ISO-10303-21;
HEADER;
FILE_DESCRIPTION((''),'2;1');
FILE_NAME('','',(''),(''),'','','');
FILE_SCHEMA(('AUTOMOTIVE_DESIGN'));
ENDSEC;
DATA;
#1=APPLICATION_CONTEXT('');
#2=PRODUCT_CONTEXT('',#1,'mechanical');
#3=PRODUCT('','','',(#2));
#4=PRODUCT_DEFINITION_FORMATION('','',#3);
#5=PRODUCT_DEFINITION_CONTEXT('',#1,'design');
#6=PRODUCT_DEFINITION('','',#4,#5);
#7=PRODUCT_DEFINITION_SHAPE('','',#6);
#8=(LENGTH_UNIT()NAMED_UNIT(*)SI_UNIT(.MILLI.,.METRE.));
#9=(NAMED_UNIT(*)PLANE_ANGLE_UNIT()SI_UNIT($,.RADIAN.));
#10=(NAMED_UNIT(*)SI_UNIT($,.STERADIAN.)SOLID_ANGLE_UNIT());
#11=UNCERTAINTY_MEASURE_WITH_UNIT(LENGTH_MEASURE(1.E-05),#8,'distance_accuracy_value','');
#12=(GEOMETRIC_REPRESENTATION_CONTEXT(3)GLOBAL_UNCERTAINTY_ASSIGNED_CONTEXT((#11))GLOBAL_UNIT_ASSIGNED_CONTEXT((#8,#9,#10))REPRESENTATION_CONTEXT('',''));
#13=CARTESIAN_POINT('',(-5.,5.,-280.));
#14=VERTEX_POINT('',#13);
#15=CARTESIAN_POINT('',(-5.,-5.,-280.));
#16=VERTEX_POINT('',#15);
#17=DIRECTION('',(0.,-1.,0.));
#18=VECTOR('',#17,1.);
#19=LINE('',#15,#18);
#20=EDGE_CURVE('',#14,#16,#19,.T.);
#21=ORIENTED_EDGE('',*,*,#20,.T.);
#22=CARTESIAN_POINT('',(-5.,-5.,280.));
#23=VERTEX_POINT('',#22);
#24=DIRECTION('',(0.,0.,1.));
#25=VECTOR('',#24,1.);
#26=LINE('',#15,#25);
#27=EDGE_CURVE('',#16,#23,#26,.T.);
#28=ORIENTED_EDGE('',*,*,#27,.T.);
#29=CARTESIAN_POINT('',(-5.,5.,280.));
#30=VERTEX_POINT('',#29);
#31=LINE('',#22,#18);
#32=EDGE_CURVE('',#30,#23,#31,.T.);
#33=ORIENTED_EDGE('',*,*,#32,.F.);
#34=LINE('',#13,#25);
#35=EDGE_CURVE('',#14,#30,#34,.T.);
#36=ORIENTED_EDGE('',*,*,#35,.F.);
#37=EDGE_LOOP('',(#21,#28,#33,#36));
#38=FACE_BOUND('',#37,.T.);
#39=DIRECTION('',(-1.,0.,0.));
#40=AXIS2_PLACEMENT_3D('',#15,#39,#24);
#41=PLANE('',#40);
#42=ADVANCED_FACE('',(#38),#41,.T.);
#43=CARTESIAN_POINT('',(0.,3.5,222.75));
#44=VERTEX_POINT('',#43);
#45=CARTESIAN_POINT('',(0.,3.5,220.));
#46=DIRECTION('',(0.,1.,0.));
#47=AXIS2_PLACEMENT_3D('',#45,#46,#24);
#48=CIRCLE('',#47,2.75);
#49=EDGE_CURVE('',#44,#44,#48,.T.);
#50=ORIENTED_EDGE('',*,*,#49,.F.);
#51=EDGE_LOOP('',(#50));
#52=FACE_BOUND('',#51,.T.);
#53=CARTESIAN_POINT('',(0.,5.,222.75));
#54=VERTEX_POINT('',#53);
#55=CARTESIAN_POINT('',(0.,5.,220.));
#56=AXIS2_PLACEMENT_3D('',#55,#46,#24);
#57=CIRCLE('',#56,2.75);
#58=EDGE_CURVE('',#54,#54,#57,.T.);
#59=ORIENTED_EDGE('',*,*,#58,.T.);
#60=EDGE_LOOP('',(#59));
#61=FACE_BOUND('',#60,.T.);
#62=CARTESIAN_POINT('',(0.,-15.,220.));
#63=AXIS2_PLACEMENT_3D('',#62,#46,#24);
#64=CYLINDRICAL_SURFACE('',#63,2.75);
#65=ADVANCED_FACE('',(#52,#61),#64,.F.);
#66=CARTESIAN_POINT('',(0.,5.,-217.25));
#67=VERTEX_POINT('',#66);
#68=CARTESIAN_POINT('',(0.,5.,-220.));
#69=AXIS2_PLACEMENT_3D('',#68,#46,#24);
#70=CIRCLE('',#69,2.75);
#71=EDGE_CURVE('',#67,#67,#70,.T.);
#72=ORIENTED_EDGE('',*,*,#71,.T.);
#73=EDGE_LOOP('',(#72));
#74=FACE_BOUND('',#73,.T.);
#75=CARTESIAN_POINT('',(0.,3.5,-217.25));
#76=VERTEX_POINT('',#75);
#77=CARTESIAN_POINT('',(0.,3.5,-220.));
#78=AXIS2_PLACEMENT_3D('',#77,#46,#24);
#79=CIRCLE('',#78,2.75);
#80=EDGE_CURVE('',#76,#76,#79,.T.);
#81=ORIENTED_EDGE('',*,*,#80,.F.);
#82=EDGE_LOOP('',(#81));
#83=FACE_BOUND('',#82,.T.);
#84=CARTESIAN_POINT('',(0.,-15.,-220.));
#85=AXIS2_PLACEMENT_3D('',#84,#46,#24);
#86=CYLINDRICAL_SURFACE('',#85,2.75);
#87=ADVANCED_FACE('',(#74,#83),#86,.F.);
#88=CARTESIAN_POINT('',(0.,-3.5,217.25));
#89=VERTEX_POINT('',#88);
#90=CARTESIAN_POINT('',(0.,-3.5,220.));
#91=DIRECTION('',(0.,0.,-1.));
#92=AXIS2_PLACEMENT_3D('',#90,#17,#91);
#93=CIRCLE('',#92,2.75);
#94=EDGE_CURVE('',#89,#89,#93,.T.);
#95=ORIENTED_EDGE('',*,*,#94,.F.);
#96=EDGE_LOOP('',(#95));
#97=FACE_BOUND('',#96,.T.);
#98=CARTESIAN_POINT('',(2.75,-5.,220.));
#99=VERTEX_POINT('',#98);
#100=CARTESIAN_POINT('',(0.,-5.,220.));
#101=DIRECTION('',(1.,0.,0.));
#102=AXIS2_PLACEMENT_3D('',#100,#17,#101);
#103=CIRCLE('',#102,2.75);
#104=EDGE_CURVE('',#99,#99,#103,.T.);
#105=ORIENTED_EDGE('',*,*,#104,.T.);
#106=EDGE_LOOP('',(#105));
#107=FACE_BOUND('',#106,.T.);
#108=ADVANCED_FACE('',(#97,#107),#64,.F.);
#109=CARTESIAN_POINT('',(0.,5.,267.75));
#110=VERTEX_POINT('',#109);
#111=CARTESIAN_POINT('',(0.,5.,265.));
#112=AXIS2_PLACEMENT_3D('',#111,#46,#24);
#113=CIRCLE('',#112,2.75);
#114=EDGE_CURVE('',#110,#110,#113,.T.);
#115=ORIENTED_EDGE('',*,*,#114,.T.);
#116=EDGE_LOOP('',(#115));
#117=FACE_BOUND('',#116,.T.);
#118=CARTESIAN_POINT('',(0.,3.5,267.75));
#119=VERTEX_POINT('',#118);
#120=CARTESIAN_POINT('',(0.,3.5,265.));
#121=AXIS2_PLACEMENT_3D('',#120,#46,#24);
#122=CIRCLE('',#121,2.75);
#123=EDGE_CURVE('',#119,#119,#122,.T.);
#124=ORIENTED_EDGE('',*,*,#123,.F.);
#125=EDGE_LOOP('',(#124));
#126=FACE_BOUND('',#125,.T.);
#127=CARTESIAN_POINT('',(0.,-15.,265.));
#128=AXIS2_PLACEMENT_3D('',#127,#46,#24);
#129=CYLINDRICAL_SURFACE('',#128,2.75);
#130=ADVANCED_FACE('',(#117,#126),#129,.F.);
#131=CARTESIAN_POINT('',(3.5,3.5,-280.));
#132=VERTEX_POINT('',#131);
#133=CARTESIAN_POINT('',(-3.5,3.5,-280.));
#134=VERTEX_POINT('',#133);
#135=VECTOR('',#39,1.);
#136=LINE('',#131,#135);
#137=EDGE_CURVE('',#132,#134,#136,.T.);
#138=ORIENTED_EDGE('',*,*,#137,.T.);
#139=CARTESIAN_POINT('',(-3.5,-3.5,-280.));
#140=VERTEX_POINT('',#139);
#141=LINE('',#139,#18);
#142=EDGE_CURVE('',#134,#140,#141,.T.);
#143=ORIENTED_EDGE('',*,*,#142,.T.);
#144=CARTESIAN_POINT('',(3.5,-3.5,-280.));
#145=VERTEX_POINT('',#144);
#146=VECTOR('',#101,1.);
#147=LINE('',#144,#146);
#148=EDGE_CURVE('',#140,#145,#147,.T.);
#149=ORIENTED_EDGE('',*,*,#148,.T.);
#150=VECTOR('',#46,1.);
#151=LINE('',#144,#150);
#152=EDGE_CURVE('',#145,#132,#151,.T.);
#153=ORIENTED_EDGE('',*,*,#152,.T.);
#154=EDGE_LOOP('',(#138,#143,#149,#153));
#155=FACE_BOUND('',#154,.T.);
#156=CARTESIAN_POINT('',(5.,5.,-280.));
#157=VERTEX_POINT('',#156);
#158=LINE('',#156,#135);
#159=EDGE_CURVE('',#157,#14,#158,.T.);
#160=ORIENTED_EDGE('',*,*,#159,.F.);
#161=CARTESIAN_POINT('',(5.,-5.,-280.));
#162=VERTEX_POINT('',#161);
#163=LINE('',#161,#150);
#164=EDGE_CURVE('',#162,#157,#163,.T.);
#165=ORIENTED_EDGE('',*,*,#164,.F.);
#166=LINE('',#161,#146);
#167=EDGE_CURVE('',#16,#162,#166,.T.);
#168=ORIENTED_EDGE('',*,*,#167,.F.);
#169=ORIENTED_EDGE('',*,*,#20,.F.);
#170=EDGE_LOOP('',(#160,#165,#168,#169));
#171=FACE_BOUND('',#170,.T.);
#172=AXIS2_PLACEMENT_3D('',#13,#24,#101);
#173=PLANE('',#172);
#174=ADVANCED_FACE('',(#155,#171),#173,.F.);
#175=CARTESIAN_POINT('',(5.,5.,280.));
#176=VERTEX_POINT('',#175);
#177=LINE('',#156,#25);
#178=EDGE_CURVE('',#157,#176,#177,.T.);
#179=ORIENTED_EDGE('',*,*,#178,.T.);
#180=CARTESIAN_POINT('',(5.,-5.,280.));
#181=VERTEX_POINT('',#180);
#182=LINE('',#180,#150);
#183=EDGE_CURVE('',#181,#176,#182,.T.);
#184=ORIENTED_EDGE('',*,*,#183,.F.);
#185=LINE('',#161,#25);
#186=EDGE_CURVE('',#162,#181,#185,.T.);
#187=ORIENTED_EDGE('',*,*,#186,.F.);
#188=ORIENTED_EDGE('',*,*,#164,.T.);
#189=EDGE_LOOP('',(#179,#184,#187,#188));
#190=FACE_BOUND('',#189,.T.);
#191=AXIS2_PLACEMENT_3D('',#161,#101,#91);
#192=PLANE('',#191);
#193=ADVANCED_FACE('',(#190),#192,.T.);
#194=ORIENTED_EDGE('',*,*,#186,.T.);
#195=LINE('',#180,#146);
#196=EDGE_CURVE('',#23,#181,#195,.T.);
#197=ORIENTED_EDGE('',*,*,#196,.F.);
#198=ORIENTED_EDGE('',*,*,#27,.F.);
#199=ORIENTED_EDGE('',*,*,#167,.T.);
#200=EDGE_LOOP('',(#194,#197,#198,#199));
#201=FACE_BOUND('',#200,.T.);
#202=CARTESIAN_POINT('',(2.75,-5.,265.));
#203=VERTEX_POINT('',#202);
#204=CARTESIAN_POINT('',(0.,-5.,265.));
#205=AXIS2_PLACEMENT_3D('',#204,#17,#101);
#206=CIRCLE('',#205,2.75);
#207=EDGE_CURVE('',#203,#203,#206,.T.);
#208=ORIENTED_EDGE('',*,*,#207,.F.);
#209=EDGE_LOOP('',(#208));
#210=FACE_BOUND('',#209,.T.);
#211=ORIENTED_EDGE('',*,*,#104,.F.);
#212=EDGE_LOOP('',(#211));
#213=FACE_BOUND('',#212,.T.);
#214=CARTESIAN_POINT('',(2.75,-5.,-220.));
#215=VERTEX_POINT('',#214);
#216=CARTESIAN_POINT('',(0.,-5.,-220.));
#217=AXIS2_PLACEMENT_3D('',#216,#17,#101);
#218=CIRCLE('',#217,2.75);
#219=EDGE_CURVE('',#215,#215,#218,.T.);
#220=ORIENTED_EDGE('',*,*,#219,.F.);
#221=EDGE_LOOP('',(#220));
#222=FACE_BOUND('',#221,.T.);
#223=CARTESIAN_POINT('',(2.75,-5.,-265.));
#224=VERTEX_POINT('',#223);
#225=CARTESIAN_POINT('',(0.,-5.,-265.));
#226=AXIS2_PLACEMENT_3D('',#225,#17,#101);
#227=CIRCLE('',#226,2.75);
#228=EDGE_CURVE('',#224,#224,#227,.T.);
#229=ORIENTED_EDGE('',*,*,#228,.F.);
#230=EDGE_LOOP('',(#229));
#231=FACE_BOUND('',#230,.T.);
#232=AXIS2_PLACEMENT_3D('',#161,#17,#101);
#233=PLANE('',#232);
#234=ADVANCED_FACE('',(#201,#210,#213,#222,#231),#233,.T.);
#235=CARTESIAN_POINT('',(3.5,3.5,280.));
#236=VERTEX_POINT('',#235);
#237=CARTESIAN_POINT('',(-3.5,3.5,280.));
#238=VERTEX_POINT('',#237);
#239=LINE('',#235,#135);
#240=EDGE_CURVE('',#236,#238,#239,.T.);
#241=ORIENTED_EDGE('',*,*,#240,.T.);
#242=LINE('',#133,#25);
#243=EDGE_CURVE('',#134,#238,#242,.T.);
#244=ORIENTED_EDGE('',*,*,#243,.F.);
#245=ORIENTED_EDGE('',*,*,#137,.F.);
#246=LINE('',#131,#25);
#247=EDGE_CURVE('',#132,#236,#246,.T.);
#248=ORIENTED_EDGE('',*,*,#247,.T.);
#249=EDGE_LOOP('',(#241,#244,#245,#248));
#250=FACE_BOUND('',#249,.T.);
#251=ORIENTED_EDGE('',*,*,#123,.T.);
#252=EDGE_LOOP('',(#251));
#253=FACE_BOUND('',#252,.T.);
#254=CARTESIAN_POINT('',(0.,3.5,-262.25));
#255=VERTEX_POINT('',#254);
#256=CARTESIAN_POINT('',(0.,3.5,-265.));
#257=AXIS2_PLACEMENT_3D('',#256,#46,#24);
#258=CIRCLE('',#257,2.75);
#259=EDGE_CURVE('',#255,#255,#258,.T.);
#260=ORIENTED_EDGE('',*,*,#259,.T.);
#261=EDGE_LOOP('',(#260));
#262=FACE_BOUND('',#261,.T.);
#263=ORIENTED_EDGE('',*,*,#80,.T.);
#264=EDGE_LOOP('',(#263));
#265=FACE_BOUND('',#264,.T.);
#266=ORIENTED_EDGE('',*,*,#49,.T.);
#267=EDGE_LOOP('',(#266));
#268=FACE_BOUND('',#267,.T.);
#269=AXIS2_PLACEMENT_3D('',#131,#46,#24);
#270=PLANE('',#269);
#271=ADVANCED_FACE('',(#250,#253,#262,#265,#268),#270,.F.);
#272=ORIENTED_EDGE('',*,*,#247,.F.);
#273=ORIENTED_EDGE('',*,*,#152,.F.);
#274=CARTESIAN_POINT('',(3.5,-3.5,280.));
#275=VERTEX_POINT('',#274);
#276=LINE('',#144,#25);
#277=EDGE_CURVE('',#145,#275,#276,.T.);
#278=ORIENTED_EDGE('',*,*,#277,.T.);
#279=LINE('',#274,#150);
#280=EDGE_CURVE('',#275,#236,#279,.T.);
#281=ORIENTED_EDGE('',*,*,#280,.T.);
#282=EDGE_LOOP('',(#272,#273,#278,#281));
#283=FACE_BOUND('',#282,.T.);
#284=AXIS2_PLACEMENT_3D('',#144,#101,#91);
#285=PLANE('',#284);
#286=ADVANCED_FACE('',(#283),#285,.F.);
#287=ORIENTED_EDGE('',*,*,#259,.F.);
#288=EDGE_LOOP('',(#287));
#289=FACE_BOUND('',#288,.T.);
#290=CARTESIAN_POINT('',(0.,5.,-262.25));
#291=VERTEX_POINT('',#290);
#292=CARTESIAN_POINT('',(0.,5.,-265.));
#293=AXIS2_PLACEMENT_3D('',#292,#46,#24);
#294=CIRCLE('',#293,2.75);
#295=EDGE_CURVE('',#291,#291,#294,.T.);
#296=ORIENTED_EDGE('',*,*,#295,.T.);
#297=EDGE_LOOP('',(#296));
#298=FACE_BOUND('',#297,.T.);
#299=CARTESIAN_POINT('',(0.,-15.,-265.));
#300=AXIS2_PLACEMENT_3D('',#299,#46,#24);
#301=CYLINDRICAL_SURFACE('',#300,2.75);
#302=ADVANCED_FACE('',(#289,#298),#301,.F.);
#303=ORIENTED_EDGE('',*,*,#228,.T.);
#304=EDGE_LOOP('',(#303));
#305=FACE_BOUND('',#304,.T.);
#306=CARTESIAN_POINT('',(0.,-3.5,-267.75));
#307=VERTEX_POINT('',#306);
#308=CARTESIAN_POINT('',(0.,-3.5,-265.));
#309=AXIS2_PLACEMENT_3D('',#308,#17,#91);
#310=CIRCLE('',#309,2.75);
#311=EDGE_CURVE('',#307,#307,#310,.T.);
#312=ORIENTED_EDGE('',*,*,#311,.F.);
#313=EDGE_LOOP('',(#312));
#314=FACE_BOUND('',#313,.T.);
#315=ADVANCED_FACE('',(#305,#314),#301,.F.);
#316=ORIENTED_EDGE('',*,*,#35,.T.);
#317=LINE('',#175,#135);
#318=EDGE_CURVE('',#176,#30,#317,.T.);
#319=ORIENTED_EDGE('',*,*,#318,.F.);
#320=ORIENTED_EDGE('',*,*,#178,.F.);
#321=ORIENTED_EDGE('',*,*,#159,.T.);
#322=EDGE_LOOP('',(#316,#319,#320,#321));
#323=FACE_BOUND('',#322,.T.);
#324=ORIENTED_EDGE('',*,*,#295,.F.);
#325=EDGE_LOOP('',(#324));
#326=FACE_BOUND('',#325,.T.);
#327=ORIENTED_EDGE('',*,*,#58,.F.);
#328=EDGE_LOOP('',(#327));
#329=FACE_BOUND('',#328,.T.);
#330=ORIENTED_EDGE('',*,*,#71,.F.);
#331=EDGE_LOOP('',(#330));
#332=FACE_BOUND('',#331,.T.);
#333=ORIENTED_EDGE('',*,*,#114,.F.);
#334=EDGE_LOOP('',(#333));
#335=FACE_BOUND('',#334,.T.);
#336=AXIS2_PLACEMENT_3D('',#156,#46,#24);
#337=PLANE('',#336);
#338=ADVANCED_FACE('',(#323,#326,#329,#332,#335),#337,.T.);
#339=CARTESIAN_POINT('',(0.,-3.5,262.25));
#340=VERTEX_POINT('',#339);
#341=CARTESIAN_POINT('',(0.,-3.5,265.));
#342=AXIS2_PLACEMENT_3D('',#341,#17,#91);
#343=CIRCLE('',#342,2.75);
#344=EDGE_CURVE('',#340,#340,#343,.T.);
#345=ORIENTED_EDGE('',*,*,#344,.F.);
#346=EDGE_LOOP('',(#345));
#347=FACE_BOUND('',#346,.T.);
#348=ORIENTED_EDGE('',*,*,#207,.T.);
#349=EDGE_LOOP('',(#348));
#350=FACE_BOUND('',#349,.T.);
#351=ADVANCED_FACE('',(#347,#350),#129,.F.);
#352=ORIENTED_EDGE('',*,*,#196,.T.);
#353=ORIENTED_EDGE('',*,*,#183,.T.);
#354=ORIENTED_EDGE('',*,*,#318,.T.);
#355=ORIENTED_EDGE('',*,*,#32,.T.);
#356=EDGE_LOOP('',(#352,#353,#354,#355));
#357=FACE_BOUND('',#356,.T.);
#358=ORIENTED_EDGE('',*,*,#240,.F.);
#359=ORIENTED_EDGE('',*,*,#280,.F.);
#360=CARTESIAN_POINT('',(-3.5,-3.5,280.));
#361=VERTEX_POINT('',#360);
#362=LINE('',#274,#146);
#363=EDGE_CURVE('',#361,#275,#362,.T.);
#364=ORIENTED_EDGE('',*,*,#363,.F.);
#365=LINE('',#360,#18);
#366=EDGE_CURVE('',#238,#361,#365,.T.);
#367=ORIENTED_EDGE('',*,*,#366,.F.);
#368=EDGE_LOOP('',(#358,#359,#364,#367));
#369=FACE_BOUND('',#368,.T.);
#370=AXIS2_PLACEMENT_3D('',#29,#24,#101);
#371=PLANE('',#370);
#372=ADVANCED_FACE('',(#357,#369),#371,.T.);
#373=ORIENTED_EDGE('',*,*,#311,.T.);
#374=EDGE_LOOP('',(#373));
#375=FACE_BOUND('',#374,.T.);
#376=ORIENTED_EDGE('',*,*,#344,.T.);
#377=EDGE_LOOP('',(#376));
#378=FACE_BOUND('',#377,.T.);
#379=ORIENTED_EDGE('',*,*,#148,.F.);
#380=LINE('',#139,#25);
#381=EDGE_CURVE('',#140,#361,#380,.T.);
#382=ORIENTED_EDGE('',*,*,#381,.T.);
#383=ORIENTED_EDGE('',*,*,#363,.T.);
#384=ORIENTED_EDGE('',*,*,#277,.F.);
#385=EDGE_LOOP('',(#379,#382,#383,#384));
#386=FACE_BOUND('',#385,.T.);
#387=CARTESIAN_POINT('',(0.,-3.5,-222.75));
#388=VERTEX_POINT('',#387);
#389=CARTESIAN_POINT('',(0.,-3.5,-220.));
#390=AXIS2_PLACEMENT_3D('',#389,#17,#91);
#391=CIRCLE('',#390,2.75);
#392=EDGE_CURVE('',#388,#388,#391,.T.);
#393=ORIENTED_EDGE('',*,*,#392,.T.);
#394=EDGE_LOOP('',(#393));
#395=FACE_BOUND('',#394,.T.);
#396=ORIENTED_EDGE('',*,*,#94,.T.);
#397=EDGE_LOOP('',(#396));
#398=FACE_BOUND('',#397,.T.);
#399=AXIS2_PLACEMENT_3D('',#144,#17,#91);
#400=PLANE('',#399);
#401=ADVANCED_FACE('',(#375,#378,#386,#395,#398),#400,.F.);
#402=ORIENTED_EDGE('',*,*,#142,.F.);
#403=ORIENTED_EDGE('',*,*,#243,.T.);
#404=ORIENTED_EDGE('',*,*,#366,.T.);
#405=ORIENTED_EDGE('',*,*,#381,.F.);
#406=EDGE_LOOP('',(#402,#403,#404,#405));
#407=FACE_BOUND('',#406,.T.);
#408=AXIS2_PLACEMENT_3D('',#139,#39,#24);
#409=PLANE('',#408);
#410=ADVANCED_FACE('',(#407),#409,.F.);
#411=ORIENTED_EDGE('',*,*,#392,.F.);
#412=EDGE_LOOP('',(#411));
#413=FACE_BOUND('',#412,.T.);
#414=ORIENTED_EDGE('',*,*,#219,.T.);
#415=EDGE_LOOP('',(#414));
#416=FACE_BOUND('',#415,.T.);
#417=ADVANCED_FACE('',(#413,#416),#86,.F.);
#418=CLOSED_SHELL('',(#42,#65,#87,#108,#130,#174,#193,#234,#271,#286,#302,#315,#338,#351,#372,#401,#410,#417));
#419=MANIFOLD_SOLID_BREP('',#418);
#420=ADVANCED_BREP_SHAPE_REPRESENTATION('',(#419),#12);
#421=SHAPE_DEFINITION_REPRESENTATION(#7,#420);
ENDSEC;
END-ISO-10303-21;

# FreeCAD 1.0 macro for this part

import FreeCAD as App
import Part
import Sketcher
from FreeCAD import Vector
Q = App.Units.Quantity


def add_polygon(sketch, points):
    """Adds a closed chain of lines whose ends are joined by coincident constraints."""
    first, n = sketch.GeometryCount, len(points)
    for a, b in zip(points, points[1:] + points[:1]):
        sketch.addGeometry(Part.LineSegment(App.Vector(*a, 0), App.Vector(*b, 0)), False)
    for i in range(n):
        sketch.addConstraint(Sketcher.Constraint("Coincident", first + i, 2, first + (i + 1) % n, 1))

doc = App.newDocument("Part")
body = doc.addObject("PartDesign::Body", "Body")

# Sketch on XY plane
sketch1 = doc.addObject("Sketcher::SketchObject", "Sketch")
body.addObject(sketch1)
sketch1.AttachmentSupport = (doc.XY_Plane, [""])
sketch1.MapMode = "FlatFace"
add_polygon(sketch1, [(-5, 5), (-5, -5), (5, -5), (5, 5)])  # lines 0-3
add_polygon(sketch1, [(3.5, -3.5), (-3.5, -3.5), (-3.5, 3.5), (3.5, 3.5)])  # lines 4-7
sketch1.addConstraint([
    Sketcher.Constraint("Vertical", 0),
    Sketcher.Constraint("Horizontal", 1),
    Sketcher.Constraint("Vertical", 2),
    Sketcher.Constraint("Horizontal", 3),
    Sketcher.Constraint("Horizontal", 4),
    Sketcher.Constraint("Vertical", 5),
    Sketcher.Constraint("Horizontal", 6),
    Sketcher.Constraint("Vertical", 7),
    Sketcher.Constraint("Symmetric", 0, 2, 2, 2, -1, 1),
    Sketcher.Constraint("Symmetric", 4, 2, 6, 2, -1, 1),
    Sketcher.Constraint("Equal", 3, 0),
    Sketcher.Constraint("Equal", 6, 5),
    Sketcher.Constraint("DistanceX", 1, 1, 1, 2, Q("10 mm")),
    Sketcher.Constraint("DistanceX", 4, 2, 4, 1, Q("7 mm")),
])
pad1 = doc.addObject("PartDesign::Pad", "Pad")
body.addObject(pad1)
pad1.Profile = sketch1
pad1.Length = 560
pad1.Midplane = True

# Sketch on XZ plane
sketch2 = doc.addObject("Sketcher::SketchObject", "Sketch001")
body.addObject(sketch2)
sketch2.AttachmentSupport = (doc.XZ_Plane, [""])
sketch2.MapMode = "FlatFace"
sketch2.addGeometry([
    Part.Circle(Vector(0, 265, 0), Vector(0, 0, 1), 2.75),
    Part.Circle(Vector(0, -265, 0), Vector(0, 0, 1), 2.75),
    Part.Circle(Vector(0, 220, 0), Vector(0, 0, 1), 2.75),
    Part.Circle(Vector(0, -220, 0), Vector(0, 0, 1), 2.75),
], False)
sketch2.addConstraint([
    Sketcher.Constraint("Equal", 0, 1),
    Sketcher.Constraint("Equal", 1, 2),
    Sketcher.Constraint("Equal", 2, 3),
    Sketcher.Constraint("Symmetric", 0, 3, 1, 3, -1, 1),
    Sketcher.Constraint("Symmetric", 2, 3, 3, 3, -1, 1),
    Sketcher.Constraint("PointOnObject", 0, 3, -2),
    Sketcher.Constraint("PointOnObject", 2, 3, -2),
    Sketcher.Constraint("Diameter", 0, Q("5.5 mm")),
    Sketcher.Constraint("DistanceY", -1, 1, 0, 3, Q("265 mm")),
    Sketcher.Constraint("DistanceY", -1, 1, 2, 3, Q("220 mm")),
])
pocket1 = doc.addObject("PartDesign::Pocket", "Pocket")
body.addObject(pocket1)
pocket1.Profile = sketch2
pocket1.Length = 30
pocket1.Midplane = True

doc.recompute()
